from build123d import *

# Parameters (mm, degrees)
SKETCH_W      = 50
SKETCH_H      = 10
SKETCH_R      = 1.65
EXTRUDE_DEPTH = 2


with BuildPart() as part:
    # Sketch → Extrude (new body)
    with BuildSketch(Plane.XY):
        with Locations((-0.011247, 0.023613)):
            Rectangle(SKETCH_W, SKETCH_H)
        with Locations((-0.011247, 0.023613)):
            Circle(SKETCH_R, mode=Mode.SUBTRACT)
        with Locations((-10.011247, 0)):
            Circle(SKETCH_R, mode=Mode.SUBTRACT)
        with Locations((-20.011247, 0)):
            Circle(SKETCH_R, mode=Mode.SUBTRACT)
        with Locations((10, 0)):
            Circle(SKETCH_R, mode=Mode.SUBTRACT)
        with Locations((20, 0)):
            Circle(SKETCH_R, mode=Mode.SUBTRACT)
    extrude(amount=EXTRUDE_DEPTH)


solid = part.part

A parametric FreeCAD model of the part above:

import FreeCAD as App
import Part
import Sketcher
Q = App.Units.Quantity


def add_polygon(sketch, points):
    """Adds a closed chain of lines whose ends are joined by coincident constraints."""
    first, n = sketch.GeometryCount, len(points)
    for a, b in zip(points, points[1:] + points[:1]):
        sketch.addGeometry(Part.LineSegment(App.Vector(*a, 0), App.Vector(*b, 0)), False)
    for i in range(n):
        sketch.addConstraint(Sketcher.Constraint("Coincident", first + i, 2, first + (i + 1) % n, 1))

doc = App.newDocument("Part")
params = doc.addObject("Spreadsheet::Sheet", "Params")
for row, (alias, value) in enumerate([
    ("sketch1_diameter", "3.3 mm"),
    ("sketch1_width", "50 mm"),
    ("sketch1_height", "10 mm"),
    ("pad1_length", "2 mm"),
], start=1):
    params.set(f"A{row}", alias)
    params.set(f"B{row}", "=" + value)
    params.setAlias(f"B{row}", alias)

body = doc.addObject("PartDesign::Body", "Body")

# Sketch on XY plane
sketch1 = doc.addObject("Sketcher::SketchObject", "Sketch")
body.addObject(sketch1)
sketch1.AttachmentSupport = (doc.XY_Plane, [""])
sketch1.MapMode = "FlatFace"
add_polygon(sketch1, [(-25, 5), (-25, -5), (25, -5), (25, 5)])  # lines 0-3
sketch1.addGeometry(Part.Circle(App.Vector(-20, 0, 0), App.Vector(0, 0, 1), 1.6), False)  # 4
sketch1.addGeometry(Part.Circle(App.Vector(-10, 0, 0), App.Vector(0, 0, 1), 1.6), False)  # 5
sketch1.addGeometry(Part.Circle(App.Vector(10, 0, 0), App.Vector(0, 0, 1), 1.6), False)  # 6
sketch1.addGeometry(Part.Circle(App.Vector(20, 0, 0), App.Vector(0, 0, 1), 1.6), False)  # 7
sketch1.addGeometry(Part.Circle(App.Vector(0, 0, 0), App.Vector(0, 0, 1), 1.6), False)  # 8
sketch1.addConstraint([
    Sketcher.Constraint("Vertical", 0),
    Sketcher.Constraint("Horizontal", 1),
    Sketcher.Constraint("Vertical", 2),
    Sketcher.Constraint("Horizontal", 3),
    Sketcher.Constraint("Equal", 4, 5),
    Sketcher.Constraint("Equal", 5, 6),
    Sketcher.Constraint("Equal", 6, 7),
    Sketcher.Constraint("Equal", 7, 8),
    Sketcher.Constraint("PointOnObject", 4, 3, -1),
    Sketcher.Constraint("PointOnObject", 5, 3, -1),
    Sketcher.Constraint("PointOnObject", 6, 3, -1),
    Sketcher.Constraint("PointOnObject", 7, 3, -1),
    Sketcher.Constraint("Diameter", 4, Q("3.3 mm")),
    Sketcher.Constraint("DistanceX", 1, 1, 1, 2, Q("50 mm")),
    Sketcher.Constraint("DistanceY", 0, 2, 0, 1, Q("10 mm")),
    Sketcher.Constraint("DistanceX", -1, 1, 6, 3, Q("10 mm")),
    Sketcher.Constraint("DistanceX", -1, 1, 7, 3, Q("20 mm")),
    Sketcher.Constraint("DistanceX", 4, 3, 5, 3, Q("10 mm")),
    Sketcher.Constraint("DistanceX", 5, 3, 8, 3, Q("10 mm")),
    Sketcher.Constraint("DistanceX", 0, 2, 4, 3, Q("5 mm")),
    Sketcher.Constraint("DistanceY", 0, 2, 8, 3, Q("5 mm")),
    Sketcher.Constraint("DistanceX", 4, 3, -1, 1, Q("20.011247 mm")),
    Sketcher.Constraint("DistanceY", -1, 1, 8, 3, Q("0.023613 mm")),
])
sketch1.setExpression("Constraints[16]", "Params.sketch1_diameter")
sketch1.setExpression("Constraints[17]", "Params.sketch1_width")
sketch1.setExpression("Constraints[18]", "Params.sketch1_height")
pad1 = doc.addObject("PartDesign::Pad", "Pad")
body.addObject(pad1)
pad1.Profile = sketch1
pad1.setExpression("Length", "Params.pad1_length")

doc.recompute()
